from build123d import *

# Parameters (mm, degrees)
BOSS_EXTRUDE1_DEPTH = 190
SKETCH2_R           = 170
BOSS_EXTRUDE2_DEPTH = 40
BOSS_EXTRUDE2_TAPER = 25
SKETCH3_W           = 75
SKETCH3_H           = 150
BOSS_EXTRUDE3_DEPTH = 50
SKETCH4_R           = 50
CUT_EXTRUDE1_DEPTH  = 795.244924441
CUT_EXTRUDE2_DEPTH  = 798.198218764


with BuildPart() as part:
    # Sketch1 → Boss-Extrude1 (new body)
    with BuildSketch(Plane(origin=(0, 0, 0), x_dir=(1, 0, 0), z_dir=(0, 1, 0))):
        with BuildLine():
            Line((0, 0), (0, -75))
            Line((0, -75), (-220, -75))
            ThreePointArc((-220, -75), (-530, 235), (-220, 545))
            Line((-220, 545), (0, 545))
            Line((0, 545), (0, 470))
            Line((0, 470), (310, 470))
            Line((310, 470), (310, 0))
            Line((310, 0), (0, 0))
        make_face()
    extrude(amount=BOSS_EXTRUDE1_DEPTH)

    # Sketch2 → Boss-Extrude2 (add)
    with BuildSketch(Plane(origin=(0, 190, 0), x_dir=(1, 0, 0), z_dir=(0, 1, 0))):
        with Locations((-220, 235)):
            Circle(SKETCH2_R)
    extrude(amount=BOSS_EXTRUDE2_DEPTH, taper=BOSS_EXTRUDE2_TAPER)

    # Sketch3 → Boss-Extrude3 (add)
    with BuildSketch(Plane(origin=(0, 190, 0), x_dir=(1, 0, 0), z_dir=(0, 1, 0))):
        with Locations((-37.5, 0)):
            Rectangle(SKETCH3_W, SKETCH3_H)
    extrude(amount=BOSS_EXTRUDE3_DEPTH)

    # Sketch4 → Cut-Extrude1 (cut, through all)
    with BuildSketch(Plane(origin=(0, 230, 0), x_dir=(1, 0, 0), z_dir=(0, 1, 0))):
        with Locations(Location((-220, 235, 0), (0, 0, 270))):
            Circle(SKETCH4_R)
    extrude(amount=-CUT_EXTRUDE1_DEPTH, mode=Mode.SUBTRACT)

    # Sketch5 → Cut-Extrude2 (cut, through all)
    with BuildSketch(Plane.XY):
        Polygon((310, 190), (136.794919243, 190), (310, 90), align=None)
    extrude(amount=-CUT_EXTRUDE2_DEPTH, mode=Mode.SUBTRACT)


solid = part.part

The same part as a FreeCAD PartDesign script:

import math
import FreeCAD as App
import Part
import Sketcher
from FreeCAD import Vector
Q = App.Units.Quantity

doc = App.newDocument("Part")
params = doc.addObject("Spreadsheet::Sheet", "Params")
for row, (alias, value) in enumerate([
    ("sketch1_radius", "310 mm"),
    ("sketch1_width", "310 mm"),
    ("sketch1_width2", "220 mm"),
    ("sketch1_height", "75 mm"),
    ("pad1_length", "190 mm"),
    ("sketch2_diameter", "340 mm"),
    ("pad2_length", "40 mm"),
    ("pad2_taper", "-25 deg"),
    ("sketch3_width", "75 mm"),
    ("sketch3_height", "150 mm"),
    ("pad3_length", "50 mm"),
    ("sketch4_diameter", "100 mm"),
    ("sketch5_height", "100 mm"),
], start=1):
    params.set(f"A{row}", alias)
    params.set(f"B{row}", "=" + value)
    params.setAlias(f"B{row}", alias)

body = doc.addObject("PartDesign::Body", "Body")

sketch1 = body.newObject("Sketcher::SketchObject", "Sketch")
sketch1.AttachmentSupport = (doc.getObject("XZ_Plane"), [""])
sketch1.MapMode = "FlatFace"
sketch1.addGeometry([
    Part.LineSegment(Vector(0, 75, 0), Vector(0, 0, 0)),
    Part.LineSegment(Vector(0, 0, 0), Vector(310, 0, 0)),
    Part.LineSegment(Vector(310, 0, 0), Vector(310, -470, 0)),
    Part.LineSegment(Vector(310, -470, 0), Vector(0, -470, 0)),
    Part.LineSegment(Vector(0, -470, 0), Vector(0, -545, 0)),
    Part.LineSegment(Vector(0, -545, 0), Vector(-220, -545, 0)),
    Part.ArcOfCircle(Part.Circle(Vector(-220, -235, 0), Vector(0, 0, 1), 310), math.radians(90), math.radians(270)),
    Part.LineSegment(Vector(-220, 75, 0), Vector(0, 75, 0)),
], False)
sketch1.addConstraint([
    Sketcher.Constraint("Coincident", 0, 2, 1, 1),
    Sketcher.Constraint("Coincident", 1, 2, 2, 1),
    Sketcher.Constraint("Coincident", 2, 2, 3, 1),
    Sketcher.Constraint("Coincident", 3, 2, 4, 1),
    Sketcher.Constraint("Coincident", 4, 2, 5, 1),
    Sketcher.Constraint("Tangent", 5, 2, 6, 2),
    Sketcher.Constraint("Tangent", 6, 1, 7, 1),
    Sketcher.Constraint("Coincident", 7, 2, 0, 1),
    Sketcher.Constraint("Vertical", 0),
    Sketcher.Constraint("Horizontal", 1),
    Sketcher.Constraint("Vertical", 2),
    Sketcher.Constraint("Horizontal", 3),
    Sketcher.Constraint("Vertical", 4),
    Sketcher.Constraint("Horizontal", 5),
    Sketcher.Constraint("Horizontal", 7),
    Sketcher.Constraint("Coincident", 0, 2, -1, 1),
    Sketcher.Constraint("PointOnObject", 3, 2, -2),
    Sketcher.Constraint("Equal", 0, 4),
    Sketcher.Constraint("Radius", 6, 310.0),
    Sketcher.Constraint("DistanceX", 1, 1, 1, 2, 310.0),
    Sketcher.Constraint("DistanceX", 5, 2, 5, 1, 220.0),
    Sketcher.Constraint("DistanceY", 0, 2, 0, 1, 75.0),
])
sketch1.setExpression("Constraints[18]", "Params.sketch1_radius")
sketch1.setExpression("Constraints[19]", "Params.sketch1_width")
sketch1.setExpression("Constraints[20]", "Params.sketch1_width2")
sketch1.setExpression("Constraints[21]", "Params.sketch1_height")
pad1 = body.newObject("PartDesign::Pad", "Pad")
pad1.Profile = sketch1
pad1.setExpression("Length", "Params.pad1_length")
pad1.Reversed = True

sketch2 = body.newObject("Sketcher::SketchObject", "Sketch001")
sketch2.AttachmentSupport = (doc.getObject("XZ_Plane"), [""])
sketch2.MapMode = "FlatFace"
sketch2.AttachmentOffset = App.Placement(Vector(0, 0, -190), App.Rotation())
sketch2.addGeometry(Part.Circle(Vector(-220, -235, 0), Vector(0, 0, 1), 170), False)
sketch2.addConstraint([
    Sketcher.Constraint("Diameter", 0, 340.0),
    Sketcher.Constraint("DistanceX", 0, 3, -1, 1, 220.0),
    Sketcher.Constraint("DistanceY", 0, 3, -1, 1, 235.0),
])
sketch2.setExpression("Constraints[0]", "Params.sketch2_diameter")
pad2 = body.newObject("PartDesign::Pad", "Pad001")
pad2.Profile = sketch2
pad2.setExpression("Length", "Params.pad2_length")
pad2.Reversed = True
pad2.setExpression("TaperAngle", "Params.pad2_taper")

sketch3 = body.newObject("Sketcher::SketchObject", "Sketch002")
sketch3.AttachmentSupport = (doc.getObject("XZ_Plane"), [""])
sketch3.MapMode = "FlatFace"
sketch3.AttachmentOffset = App.Placement(Vector(0, 0, -190), App.Rotation())
sketch3.addGeometry([
    Part.LineSegment(Vector(-75, -75, 0), Vector(-75, 75, 0)),
    Part.LineSegment(Vector(-75, 75, 0), Vector(0, 75, 0)),
    Part.LineSegment(Vector(0, 75, 0), Vector(0, -75, 0)),
    Part.LineSegment(Vector(0, -75, 0), Vector(-75, -75, 0)),
], False)
sketch3.addConstraint([
    Sketcher.Constraint("Coincident", 0, 2, 1, 1),
    Sketcher.Constraint("Coincident", 1, 2, 2, 1),
    Sketcher.Constraint("Coincident", 2, 2, 3, 1),
    Sketcher.Constraint("Coincident", 3, 2, 0, 1),
    Sketcher.Constraint("Vertical", 0),
    Sketcher.Constraint("Horizontal", 1),
    Sketcher.Constraint("Vertical", 2),
    Sketcher.Constraint("Horizontal", 3),
    Sketcher.Constraint("Symmetric", 1, 2, 2, 2, -1, 1),
    Sketcher.Constraint("DistanceX", 1, 1, 1, 2, 75.0),
    Sketcher.Constraint("DistanceY", 0, 1, 0, 2, 150.0),
])
sketch3.setExpression("Constraints[9]", "Params.sketch3_width")
sketch3.setExpression("Constraints[10]", "Params.sketch3_height")
pad3 = body.newObject("PartDesign::Pad", "Pad002")
pad3.Profile = sketch3
pad3.setExpression("Length", "Params.pad3_length")
pad3.Reversed = True

sketch4 = body.newObject("Sketcher::SketchObject", "Sketch003")
sketch4.AttachmentSupport = (doc.getObject("XZ_Plane"), [""])
sketch4.MapMode = "FlatFace"
sketch4.AttachmentOffset = App.Placement(Vector(0, 0, -230), App.Rotation())
sketch4.addGeometry(Part.Circle(Vector(-220, -235, 0), Vector(0, 0, 1), 50), False)
sketch4.addConstraint([
    Sketcher.Constraint("Diameter", 0, 100.0),
    Sketcher.Constraint("DistanceX", 0, 3, -1, 1, 220.0),
    Sketcher.Constraint("DistanceY", 0, 3, -1, 1, 235.0),
])
sketch4.setExpression("Constraints[0]", "Params.sketch4_diameter")
pocket1 = body.newObject("PartDesign::Pocket", "Pocket")
pocket1.Profile = sketch4
pocket1.Type = "ThroughAll"
pocket1.Reversed = True

sketch5 = body.newObject("Sketcher::SketchObject", "Sketch004")
sketch5.AttachmentSupport = (doc.getObject("XY_Plane"), [""])
sketch5.MapMode = "FlatFace"
sketch5.addGeometry([
    Part.LineSegment(Vector(310, 190, 0), Vector(137, 190, 0)),
    Part.LineSegment(Vector(137, 190, 0), Vector(310, 90, 0)),
    Part.LineSegment(Vector(310, 90, 0), Vector(310, 190, 0)),
], False)
sketch5.addConstraint([
    Sketcher.Constraint("Coincident", 0, 2, 1, 1),
    Sketcher.Constraint("Coincident", 1, 2, 2, 1),
    Sketcher.Constraint("Coincident", 2, 2, 0, 1),
    Sketcher.Constraint("Horizontal", 0),
    Sketcher.Constraint("Vertical", 2),
    Sketcher.Constraint("DistanceY", 2, 1, 2, 2, 100.0),
    Sketcher.Constraint("Angle", 1, Q("-30 deg")),
    Sketcher.Constraint("DistanceY", -1, 1, 0, 2, 190.0),
    Sketcher.Constraint("DistanceX", -1, 1, 1, 2, 310.0),
])
sketch5.setExpression("Constraints[5]", "Params.sketch5_height")
pocket2 = body.newObject("PartDesign::Pocket", "Pocket001")
pocket2.Profile = sketch5
pocket2.Type = "ThroughAll"

doc.recompute()
